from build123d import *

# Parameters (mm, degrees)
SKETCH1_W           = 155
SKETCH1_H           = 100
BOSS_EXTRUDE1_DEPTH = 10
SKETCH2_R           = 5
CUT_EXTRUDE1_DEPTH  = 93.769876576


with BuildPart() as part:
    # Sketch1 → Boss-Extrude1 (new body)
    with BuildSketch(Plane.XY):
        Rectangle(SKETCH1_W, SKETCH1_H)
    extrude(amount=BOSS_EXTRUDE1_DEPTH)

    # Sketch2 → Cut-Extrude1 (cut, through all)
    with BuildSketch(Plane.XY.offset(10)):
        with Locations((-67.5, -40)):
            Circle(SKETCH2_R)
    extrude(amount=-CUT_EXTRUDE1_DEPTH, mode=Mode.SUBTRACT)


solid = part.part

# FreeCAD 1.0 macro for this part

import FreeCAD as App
import Part
import Sketcher
from FreeCAD import Vector
Q = App.Units.Quantity

doc = App.newDocument("Part")
params = doc.addObject("Spreadsheet::Sheet", "Params")
for row, (alias, value) in enumerate([
    ("sketch1_width", "155 mm"),
    ("sketch1_height", "100 mm"),
    ("pad1_length", "10 mm"),
    ("sketch2_diameter", "10 mm"),
], start=1):
    params.set(f"A{row}", alias)
    params.set(f"B{row}", "=" + value)
    params.setAlias(f"B{row}", alias)

body = doc.addObject("PartDesign::Body", "Body")

# Sketch on XY plane
sketch1 = body.newObject("Sketcher::SketchObject", "Sketch")
sketch1.AttachmentSupport = (doc.getObject("XY_Plane"), [""])
sketch1.MapMode = "FlatFace"
sketch1.addGeometry(Part.LineSegment(Vector(-78, 50, 0), Vector(-78, -50, 0)), False)
sketch1.addGeometry(Part.LineSegment(Vector(-78, -50, 0), Vector(78, -50, 0)), False)
sketch1.addGeometry(Part.LineSegment(Vector(78, -50, 0), Vector(78, 50, 0)), False)
sketch1.addGeometry(Part.LineSegment(Vector(78, 50, 0), Vector(-78, 50, 0)), False)
sketch1.addConstraint(Sketcher.Constraint("Coincident", 0, 2, 1, 1))
sketch1.addConstraint(Sketcher.Constraint("Coincident", 1, 2, 2, 1))
sketch1.addConstraint(Sketcher.Constraint("Coincident", 2, 2, 3, 1))
sketch1.addConstraint(Sketcher.Constraint("Coincident", 3, 2, 0, 1))
sketch1.addConstraint(Sketcher.Constraint("Vertical", 0))
sketch1.addConstraint(Sketcher.Constraint("Horizontal", 1))
sketch1.addConstraint(Sketcher.Constraint("Vertical", 2))
sketch1.addConstraint(Sketcher.Constraint("Horizontal", 3))
sketch1.addConstraint(Sketcher.Constraint("Symmetric", 0, 2, 2, 2, -1, 1))
sketch1.addConstraint(Sketcher.Constraint("DistanceX", 1, 1, 1, 2, Q("155 mm")))
sketch1.addConstraint(Sketcher.Constraint("DistanceY", 0, 2, 0, 1, Q("100 mm")))
sketch1.setExpression("Constraints[9]", "Params.sketch1_width")
sketch1.setExpression("Constraints[10]", "Params.sketch1_height")
pad1 = body.newObject("PartDesign::Pad", "Pad")
pad1.Profile = sketch1
pad1.setExpression("Length", "Params.pad1_length")

# Sketch on XY plane
sketch2 = body.newObject("Sketcher::SketchObject", "Sketch001")
sketch2.AttachmentSupport = (doc.getObject("XY_Plane"), [""])
sketch2.MapMode = "FlatFace"
sketch2.AttachmentOffset = App.Placement(Vector(0, 0, 10), App.Rotation())
sketch2.addGeometry(Part.Circle(Vector(-68, -40, 0), Vector(0, 0, 1), 5), False)
sketch2.addConstraint(Sketcher.Constraint("Diameter", 0, Q("10 mm")))
sketch2.addConstraint(Sketcher.Constraint("DistanceY", 0, 3, -1, 1, Q("40 mm")))
sketch2.addConstraint(Sketcher.Constraint("DistanceX", 0, 3, -1, 1, Q("67.5 mm")))
sketch2.setExpression("Constraints[0]", "Params.sketch2_diameter")
pocket1 = body.newObject("PartDesign::Pocket", "Pocket")
pocket1.Profile = sketch2
pocket1.Type = "ThroughAll"

doc.recompute()
